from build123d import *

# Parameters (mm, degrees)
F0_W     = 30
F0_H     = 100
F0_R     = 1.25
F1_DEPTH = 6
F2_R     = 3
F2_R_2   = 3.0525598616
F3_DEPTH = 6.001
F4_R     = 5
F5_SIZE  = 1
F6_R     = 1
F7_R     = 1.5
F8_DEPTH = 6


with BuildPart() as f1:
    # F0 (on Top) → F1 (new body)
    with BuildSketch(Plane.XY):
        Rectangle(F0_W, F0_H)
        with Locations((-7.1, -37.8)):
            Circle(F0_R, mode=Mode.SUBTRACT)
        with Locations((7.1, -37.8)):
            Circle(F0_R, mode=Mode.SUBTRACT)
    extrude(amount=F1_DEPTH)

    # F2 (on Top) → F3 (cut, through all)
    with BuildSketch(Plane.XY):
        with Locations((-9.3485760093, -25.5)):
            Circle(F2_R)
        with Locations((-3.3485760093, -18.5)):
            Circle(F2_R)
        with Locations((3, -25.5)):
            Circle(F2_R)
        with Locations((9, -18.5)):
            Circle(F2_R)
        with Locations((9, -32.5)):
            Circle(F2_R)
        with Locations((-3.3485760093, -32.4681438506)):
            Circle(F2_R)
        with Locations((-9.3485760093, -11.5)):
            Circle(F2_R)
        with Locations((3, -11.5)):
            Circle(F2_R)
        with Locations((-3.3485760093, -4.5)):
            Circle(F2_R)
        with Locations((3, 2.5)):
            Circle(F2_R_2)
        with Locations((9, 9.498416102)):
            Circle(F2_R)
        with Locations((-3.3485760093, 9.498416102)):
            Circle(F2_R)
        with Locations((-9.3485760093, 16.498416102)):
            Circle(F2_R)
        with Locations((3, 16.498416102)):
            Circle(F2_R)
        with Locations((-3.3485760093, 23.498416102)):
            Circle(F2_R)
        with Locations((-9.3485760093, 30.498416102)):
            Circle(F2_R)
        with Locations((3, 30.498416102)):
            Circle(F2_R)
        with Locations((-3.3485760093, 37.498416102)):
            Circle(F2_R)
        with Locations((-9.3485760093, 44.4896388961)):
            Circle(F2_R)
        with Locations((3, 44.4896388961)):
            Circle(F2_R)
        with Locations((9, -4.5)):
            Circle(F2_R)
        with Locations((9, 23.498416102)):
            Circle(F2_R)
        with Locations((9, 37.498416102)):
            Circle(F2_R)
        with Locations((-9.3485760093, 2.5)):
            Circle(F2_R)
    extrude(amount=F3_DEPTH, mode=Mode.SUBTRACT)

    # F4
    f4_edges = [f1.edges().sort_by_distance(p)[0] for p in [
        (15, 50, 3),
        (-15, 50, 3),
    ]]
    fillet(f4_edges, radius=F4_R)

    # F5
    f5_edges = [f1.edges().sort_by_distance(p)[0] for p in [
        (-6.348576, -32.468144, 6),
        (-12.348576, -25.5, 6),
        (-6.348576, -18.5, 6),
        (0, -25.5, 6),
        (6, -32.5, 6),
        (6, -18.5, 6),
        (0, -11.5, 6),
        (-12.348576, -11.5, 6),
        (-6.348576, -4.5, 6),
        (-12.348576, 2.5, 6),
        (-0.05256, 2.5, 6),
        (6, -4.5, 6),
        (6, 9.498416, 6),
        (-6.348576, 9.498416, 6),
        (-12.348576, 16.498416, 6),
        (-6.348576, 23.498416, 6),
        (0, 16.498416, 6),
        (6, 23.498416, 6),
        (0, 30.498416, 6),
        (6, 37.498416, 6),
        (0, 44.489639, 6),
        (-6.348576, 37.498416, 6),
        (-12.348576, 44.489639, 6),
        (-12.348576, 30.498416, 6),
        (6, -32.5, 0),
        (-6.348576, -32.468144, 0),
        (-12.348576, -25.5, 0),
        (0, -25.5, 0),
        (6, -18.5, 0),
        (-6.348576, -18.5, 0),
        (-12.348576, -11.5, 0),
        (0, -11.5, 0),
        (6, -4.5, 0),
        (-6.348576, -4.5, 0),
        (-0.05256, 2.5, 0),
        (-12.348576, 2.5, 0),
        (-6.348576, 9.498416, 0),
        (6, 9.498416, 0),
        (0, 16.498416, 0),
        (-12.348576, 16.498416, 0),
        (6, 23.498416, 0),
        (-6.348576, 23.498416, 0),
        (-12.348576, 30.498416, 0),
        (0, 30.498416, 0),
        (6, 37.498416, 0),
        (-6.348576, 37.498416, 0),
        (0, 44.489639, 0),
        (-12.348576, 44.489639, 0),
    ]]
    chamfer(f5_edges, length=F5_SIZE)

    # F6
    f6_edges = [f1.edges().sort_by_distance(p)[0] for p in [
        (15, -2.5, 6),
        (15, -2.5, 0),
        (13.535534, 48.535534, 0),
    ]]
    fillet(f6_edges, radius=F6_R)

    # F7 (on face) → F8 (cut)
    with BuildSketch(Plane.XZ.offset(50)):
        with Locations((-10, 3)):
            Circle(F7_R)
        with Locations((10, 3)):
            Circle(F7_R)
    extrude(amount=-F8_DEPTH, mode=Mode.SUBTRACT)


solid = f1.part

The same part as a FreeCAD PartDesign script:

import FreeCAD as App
import Part
import Sketcher
from FreeCAD import Vector


def edges_at(feature, points):
    """Names of the edges that pass closest to the given points."""
    edges = feature.Shape.Edges
    near = lambda p: min(range(len(edges)), key=lambda i: edges[i].distToShape(Part.Vertex(*p))[0])
    return sorted({f"Edge{near(p) + 1}" for p in points})

doc = App.newDocument("Part")
body = doc.addObject("PartDesign::Body", "Body")

sketch1 = doc.addObject("Sketcher::SketchObject", "Sketch")
body.addObject(sketch1)
sketch1.AttachmentSupport = (doc.XY_Plane, [""])
sketch1.MapMode = "FlatFace"
sketch1.addGeometry(Part.LineSegment(Vector(-15, 50, 0), Vector(-15, -50, 0)), False)
sketch1.addGeometry(Part.LineSegment(Vector(-15, -50, 0), Vector(15, -50, 0)), False)
sketch1.addGeometry(Part.LineSegment(Vector(15, -50, 0), Vector(15, 50, 0)), False)
sketch1.addGeometry(Part.LineSegment(Vector(15, 50, 0), Vector(-15, 50, 0)), False)
sketch1.addGeometry(Part.Circle(Vector(-7.1, -37.8, 0), Vector(0, 0, 1), 1.25), False)
sketch1.addGeometry(Part.Circle(Vector(7.1, -37.8, 0), Vector(0, 0, 1), 1.25), False)
sketch1.addConstraint(Sketcher.Constraint("Coincident", 0, 2, 1, 1))
sketch1.addConstraint(Sketcher.Constraint("Coincident", 1, 2, 2, 1))
sketch1.addConstraint(Sketcher.Constraint("Coincident", 2, 2, 3, 1))
sketch1.addConstraint(Sketcher.Constraint("Coincident", 3, 2, 0, 1))
sketch1.addConstraint(Sketcher.Constraint("Vertical", 0))
sketch1.addConstraint(Sketcher.Constraint("Horizontal", 1))
sketch1.addConstraint(Sketcher.Constraint("Vertical", 2))
sketch1.addConstraint(Sketcher.Constraint("Horizontal", 3))
sketch1.addConstraint(Sketcher.Constraint("Equal", 4, 5))
sketch1.addConstraint(Sketcher.Constraint("Symmetric", 0, 2, 2, 2, -1, 1))
sketch1.addConstraint(Sketcher.Constraint("Symmetric", 4, 3, 5, 3, -2))
sketch1.addConstraint(Sketcher.Constraint("Diameter", 4, 2.5))
sketch1.addConstraint(Sketcher.Constraint("DistanceX", 1, 1, 1, 2, 30.0))
sketch1.addConstraint(Sketcher.Constraint("DistanceY", 0, 2, 0, 1, 100.0))
sketch1.addConstraint(Sketcher.Constraint("DistanceX", 4, 3, -1, 1, 7.1))
sketch1.addConstraint(Sketcher.Constraint("DistanceY", 4, 3, -1, 1, 37.8))
pad1 = doc.addObject("PartDesign::Pad", "Pad")
body.addObject(pad1)
pad1.Profile = sketch1
pad1.Length = 6

sketch2 = doc.addObject("Sketcher::SketchObject", "Sketch001")
body.addObject(sketch2)
sketch2.AttachmentSupport = (doc.XY_Plane, [""])
sketch2.MapMode = "FlatFace"
sketch2.addGeometry(Part.Circle(Vector(-9.348576, -25.5, 0), Vector(0, 0, 1), 3), False)
sketch2.addGeometry(Part.Circle(Vector(-3.348576, -18.5, 0), Vector(0, 0, 1), 3), False)
sketch2.addGeometry(Part.Circle(Vector(3, -25.5, 0), Vector(0, 0, 1), 3), False)
sketch2.addGeometry(Part.Circle(Vector(9, -18.5, 0), Vector(0, 0, 1), 3), False)
sketch2.addGeometry(Part.Circle(Vector(9, -32.5, 0), Vector(0, 0, 1), 3), False)
sketch2.addGeometry(Part.Circle(Vector(-3.348576, -32.468144, 0), Vector(0, 0, 1), 3), False)
sketch2.addGeometry(Part.Circle(Vector(-9.348576, -11.5, 0), Vector(0, 0, 1), 3), False)
sketch2.addGeometry(Part.Circle(Vector(3, -11.5, 0), Vector(0, 0, 1), 3), False)
sketch2.addGeometry(Part.Circle(Vector(-3.348576, -4.5, 0), Vector(0, 0, 1), 3), False)
sketch2.addGeometry(Part.Circle(Vector(3, 2.5, 0), Vector(0, 0, 1), 3.05256), False)
sketch2.addGeometry(Part.Circle(Vector(9, 9.498416, 0), Vector(0, 0, 1), 3), False)
sketch2.addGeometry(Part.Circle(Vector(-3.348576, 9.498416, 0), Vector(0, 0, 1), 3), False)
sketch2.addGeometry(Part.Circle(Vector(-9.348576, 16.498416, 0), Vector(0, 0, 1), 3), False)
sketch2.addGeometry(Part.Circle(Vector(3, 16.498416, 0), Vector(0, 0, 1), 3), False)
sketch2.addGeometry(Part.Circle(Vector(-3.348576, 23.498416, 0), Vector(0, 0, 1), 3), False)
sketch2.addGeometry(Part.Circle(Vector(-9.348576, 30.498416, 0), Vector(0, 0, 1), 3), False)
sketch2.addGeometry(Part.Circle(Vector(3, 30.498416, 0), Vector(0, 0, 1), 3), False)
sketch2.addGeometry(Part.Circle(Vector(-3.348576, 37.498416, 0), Vector(0, 0, 1), 3), False)
sketch2.addGeometry(Part.Circle(Vector(-9.348576, 44.489639, 0), Vector(0, 0, 1), 3), False)
sketch2.addGeometry(Part.Circle(Vector(3, 44.489639, 0), Vector(0, 0, 1), 3), False)
sketch2.addGeometry(Part.Circle(Vector(9, -4.5, 0), Vector(0, 0, 1), 3), False)
sketch2.addGeometry(Part.Circle(Vector(9, 23.498416, 0), Vector(0, 0, 1), 3), False)
sketch2.addGeometry(Part.Circle(Vector(9, 37.498416, 0), Vector(0, 0, 1), 3), False)
sketch2.addGeometry(Part.Circle(Vector(-9.348576, 2.5, 0), Vector(0, 0, 1), 3), False)
sketch2.addConstraint(Sketcher.Constraint("Equal", 0, 1))
sketch2.addConstraint(Sketcher.Constraint("Equal", 1, 2))
sketch2.addConstraint(Sketcher.Constraint("Equal", 2, 3))
sketch2.addConstraint(Sketcher.Constraint("Equal", 3, 4))
sketch2.addConstraint(Sketcher.Constraint("Equal", 4, 5))
sketch2.addConstraint(Sketcher.Constraint("Equal", 5, 6))
sketch2.addConstraint(Sketcher.Constraint("Equal", 6, 7))
sketch2.addConstraint(Sketcher.Constraint("Equal", 7, 8))
sketch2.addConstraint(Sketcher.Constraint("Equal", 8, 10))
sketch2.addConstraint(Sketcher.Constraint("Equal", 10, 11))
sketch2.addConstraint(Sketcher.Constraint("Equal", 11, 12))
sketch2.addConstraint(Sketcher.Constraint("Equal", 12, 13))
sketch2.addConstraint(Sketcher.Constraint("Equal", 13, 14))
sketch2.addConstraint(Sketcher.Constraint("Equal", 14, 15))
sketch2.addConstraint(Sketcher.Constraint("Equal", 15, 16))
sketch2.addConstraint(Sketcher.Constraint("Equal", 16, 17))
sketch2.addConstraint(Sketcher.Constraint("Equal", 17, 18))
sketch2.addConstraint(Sketcher.Constraint("Equal", 18, 19))
sketch2.addConstraint(Sketcher.Constraint("Equal", 19, 20))
sketch2.addConstraint(Sketcher.Constraint("Equal", 20, 21))
sketch2.addConstraint(Sketcher.Constraint("Equal", 21, 22))
sketch2.addConstraint(Sketcher.Constraint("Equal", 22, 23))
sketch2.addConstraint(Sketcher.Constraint("Horizontal", 0, 3, 2, 3))
sketch2.addConstraint(Sketcher.Constraint("Horizontal", 1, 3, 3, 3))
sketch2.addConstraint(Sketcher.Constraint("Horizontal", 6, 3, 7, 3))
sketch2.addConstraint(Sketcher.Constraint("Horizontal", 10, 3, 11, 3))
sketch2.addConstraint(Sketcher.Constraint("Horizontal", 12, 3, 13, 3))
sketch2.addConstraint(Sketcher.Constraint("Horizontal", 15, 3, 16, 3))
sketch2.addConstraint(Sketcher.Constraint("Horizontal", 18, 3, 19, 3))
sketch2.addConstraint(Sketcher.Constraint("Horizontal", 8, 3, 20, 3))
sketch2.addConstraint(Sketcher.Constraint("Horizontal", 14, 3, 21, 3))
sketch2.addConstraint(Sketcher.Constraint("Horizontal", 17, 3, 22, 3))
sketch2.addConstraint(Sketcher.Constraint("Horizontal", 9, 3, 23, 3))
sketch2.addConstraint(Sketcher.Constraint("Vertical", 3, 3, 4, 3))
sketch2.addConstraint(Sketcher.Constraint("Vertical", 1, 3, 5, 3))
sketch2.addConstraint(Sketcher.Constraint("Vertical", 0, 3, 6, 3))
sketch2.addConstraint(Sketcher.Constraint("Vertical", 2, 3, 7, 3))
sketch2.addConstraint(Sketcher.Constraint("Vertical", 5, 3, 8, 3))
sketch2.addConstraint(Sketcher.Constraint("Vertical", 7, 3, 9, 3))
sketch2.addConstraint(Sketcher.Constraint("Vertical", 4, 3, 10, 3))
sketch2.addConstraint(Sketcher.Constraint("Vertical", 8, 3, 11, 3))
sketch2.addConstraint(Sketcher.Constraint("Vertical", 6, 3, 12, 3))
sketch2.addConstraint(Sketcher.Constraint("Vertical", 9, 3, 13, 3))
sketch2.addConstraint(Sketcher.Constraint("Vertical", 11, 3, 14, 3))
sketch2.addConstraint(Sketcher.Constraint("Vertical", 12, 3, 15, 3))
sketch2.addConstraint(Sketcher.Constraint("Vertical", 13, 3, 16, 3))
sketch2.addConstraint(Sketcher.Constraint("Vertical", 14, 3, 17, 3))
sketch2.addConstraint(Sketcher.Constraint("Vertical", 15, 3, 18, 3))
sketch2.addConstraint(Sketcher.Constraint("Vertical", 16, 3, 19, 3))
sketch2.addConstraint(Sketcher.Constraint("Vertical", 10, 3, 20, 3))
sketch2.addConstraint(Sketcher.Constraint("Vertical", 20, 3, 21, 3))
sketch2.addConstraint(Sketcher.Constraint("Vertical", 21, 3, 22, 3))
sketch2.addConstraint(Sketcher.Constraint("Vertical", 18, 3, 23, 3))
sketch2.addConstraint(Sketcher.Constraint("Diameter", 0, 6.0))
sketch2.addConstraint(Sketcher.Constraint("DistanceX", -1, 1, 2, 3, 3.0))
sketch2.addConstraint(Sketcher.Constraint("DistanceX", -1, 1, 3, 3, 9.0))
sketch2.addConstraint(Sketcher.Constraint("DistanceX", 0, 3, 1, 3, 6.0))
sketch2.addConstraint(Sketcher.Constraint("DistanceY", 0, 3, 1, 3, 7.0))
sketch2.addConstraint(Sketcher.Constraint("DistanceY", 4, 3, 2, 3, 7.0))
sketch2.addConstraint(Sketcher.Constraint("DistanceY", 1, 3, 6, 3, 7.0))
sketch2.addConstraint(Sketcher.Constraint("DistanceY", 6, 3, 8, 3, 7.0))
sketch2.addConstraint(Sketcher.Constraint("DistanceY", 8, 3, 9, 3, 7.0))
sketch2.addConstraint(Sketcher.Constraint("DistanceY", 11, 3, 12, 3, 7.0))
sketch2.addConstraint(Sketcher.Constraint("DistanceY", 12, 3, 14, 3, 7.0))
sketch2.addConstraint(Sketcher.Constraint("DistanceY", 14, 3, 15, 3, 7.0))
sketch2.addConstraint(Sketcher.Constraint("DistanceY", 15, 3, 17, 3, 7.0))
sketch2.addConstraint(Sketcher.Constraint("DistanceY", 0, 3, -1, 1, 25.5))
sketch2.addConstraint(Sketcher.Constraint("Diameter", 9, 6.10512))
sketch2.addConstraint(Sketcher.Constraint("DistanceY", -1, 1, 18, 3, 44.489639))
sketch2.addConstraint(Sketcher.Constraint("DistanceX", 0, 3, -1, 1, 9.348576))
sketch2.addConstraint(Sketcher.Constraint("DistanceY", 5, 3, -1, 1, 32.468144))
sketch2.addConstraint(Sketcher.Constraint("DistanceY", -1, 1, 10, 3, 9.498416))
pocket1 = doc.addObject("PartDesign::Pocket", "Pocket")
body.addObject(pocket1)
pocket1.Profile = sketch2
pocket1.Type = "ThroughAll"
pocket1.Reversed = True
doc.recompute()

fillet = doc.addObject("PartDesign::Fillet", "Fillet")
body.addObject(fillet)
fillet.Base = (pocket1, edges_at(pocket1, [(15, 50, 3), (-15, 50, 3)]))
fillet.Radius = 5
doc.recompute()

chamfer = doc.addObject("PartDesign::Chamfer", "Chamfer")
body.addObject(chamfer)
chamfer.Base = (fillet, edges_at(fillet, [
    (-6.349, -32.468, 6),
    (-12.349, -25.5, 6),
    (-6.349, -18.5, 6),
    (0, -25.5, 6),
    (6, -32.5, 6),
    (6, -18.5, 6),
    (0, -11.5, 6),
    (-12.349, -11.5, 6),
    (-6.349, -4.5, 6),
    (-12.349, 2.5, 6),
    (-0.053, 2.5, 6),
    (6, -4.5, 6),
    (6, 9.498, 6),
    (-6.349, 9.498, 6),
    (-12.349, 16.498, 6),
    (-6.349, 23.498, 6),
    (0, 16.498, 6),
    (6, 23.498, 6),
    (0, 30.498, 6),
    (6, 37.498, 6),
    (0, 44.49, 6),
    (-6.349, 37.498, 6),
    (-12.349, 44.49, 6),
    (-12.349, 30.498, 6),
    (6, -32.5, 0),
    (-6.349, -32.468, 0),
    (-12.349, -25.5, 0),
    (0, -25.5, 0),
    (6, -18.5, 0),
    (-6.349, -18.5, 0),
    (-12.349, -11.5, 0),
    (0, -11.5, 0),
    (6, -4.5, 0),
    (-6.349, -4.5, 0),
    (-0.053, 2.5, 0),
    (-12.349, 2.5, 0),
    (-6.349, 9.498, 0),
    (6, 9.498, 0),
    (0, 16.498, 0),
    (-12.349, 16.498, 0),
    (6, 23.498, 0),
    (-6.349, 23.498, 0),
    (-12.349, 30.498, 0),
    (0, 30.498, 0),
    (6, 37.498, 0),
    (-6.349, 37.498, 0),
    (0, 44.49, 0),
    (-12.349, 44.49, 0),
]))
chamfer.Size = 1
doc.recompute()

fillet2 = doc.addObject("PartDesign::Fillet", "Fillet001")
body.addObject(fillet2)
fillet2.Base = (chamfer, edges_at(chamfer, [(15, -2.5, 6), (15, -2.5, 0), (13.536, 48.536, 0)]))
fillet2.Radius = 1

sketch3 = doc.addObject("Sketcher::SketchObject", "Sketch002")
body.addObject(sketch3)
sketch3.AttachmentSupport = (doc.XZ_Plane, [""])
sketch3.MapMode = "FlatFace"
sketch3.AttachmentOffset = App.Placement(Vector(0, 0, 50), App.Rotation())
sketch3.addGeometry(Part.Circle(Vector(-10, 3, 0), Vector(0, 0, 1), 1.5), False)
sketch3.addGeometry(Part.Circle(Vector(10, 3, 0), Vector(0, 0, 1), 1.5), False)
sketch3.addConstraint(Sketcher.Constraint("Equal", 0, 1))
sketch3.addConstraint(Sketcher.Constraint("Symmetric", 0, 3, 1, 3, -2))
sketch3.addConstraint(Sketcher.Constraint("Diameter", 0, 3.0))
sketch3.addConstraint(Sketcher.Constraint("DistanceX", 0, 3, -1, 1, 10.0))
sketch3.addConstraint(Sketcher.Constraint("DistanceY", -1, 1, 0, 3, 3.0))
pocket2 = doc.addObject("PartDesign::Pocket", "Pocket001")
body.addObject(pocket2)
pocket2.Profile = sketch3
pocket2.Length = 6

doc.recompute()
